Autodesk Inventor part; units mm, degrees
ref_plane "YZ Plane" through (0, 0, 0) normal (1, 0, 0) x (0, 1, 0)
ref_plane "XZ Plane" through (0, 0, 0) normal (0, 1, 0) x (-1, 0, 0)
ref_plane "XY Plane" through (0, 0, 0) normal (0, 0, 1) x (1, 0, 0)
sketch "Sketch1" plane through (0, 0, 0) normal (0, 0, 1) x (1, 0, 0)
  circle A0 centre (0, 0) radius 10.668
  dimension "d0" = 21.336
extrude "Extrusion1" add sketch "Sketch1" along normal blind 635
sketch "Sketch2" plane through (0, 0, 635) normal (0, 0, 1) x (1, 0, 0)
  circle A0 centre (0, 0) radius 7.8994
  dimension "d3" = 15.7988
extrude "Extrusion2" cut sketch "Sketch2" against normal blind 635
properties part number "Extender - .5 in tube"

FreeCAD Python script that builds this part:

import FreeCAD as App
import Part
import Sketcher

V = App.Vector
Q = App.Units.Quantity

doc = App.newDocument("Part")
body = doc.addObject("PartDesign::Body", "Body")

# Sketch on XY plane
sketch1 = doc.addObject("Sketcher::SketchObject", "Sketch")
body.addObject(sketch1)
sketch1.AttachmentSupport = (doc.XY_Plane, [""])
sketch1.MapMode = "FlatFace"
sketch1.addGeometry(Part.Circle(V(0, 0, 0), V(0, 0, 1), 11), False)
sketch1.addConstraint(Sketcher.Constraint("Coincident", 0, 3, -1, 1))
sketch1.addConstraint(Sketcher.Constraint("Diameter", 0, Q("0.84 in")))
pad1 = doc.addObject("PartDesign::Pad", "Pad")
body.addObject(pad1)
pad1.Profile = sketch1
pad1.Length = Q("25 in")

# Sketch on XY plane
sketch2 = doc.addObject("Sketcher::SketchObject", "Sketch001")
body.addObject(sketch2)
sketch2.AttachmentSupport = (doc.XY_Plane, [""])
sketch2.MapMode = "FlatFace"
sketch2.AttachmentOffset = App.Placement(V(0, 0, 25 * 25.4), App.Rotation())
sketch2.addGeometry(Part.Circle(V(0, 0, 0), V(0, 0, 1), 8), False)
sketch2.addConstraint(Sketcher.Constraint("Coincident", 0, 3, -1, 1))
sketch2.addConstraint(Sketcher.Constraint("Diameter", 0, Q("0.622 in")))
pocket1 = doc.addObject("PartDesign::Pocket", "Pocket")
body.addObject(pocket1)
pocket1.Profile = sketch2
pocket1.Length = Q("25 in")

doc.recompute()
